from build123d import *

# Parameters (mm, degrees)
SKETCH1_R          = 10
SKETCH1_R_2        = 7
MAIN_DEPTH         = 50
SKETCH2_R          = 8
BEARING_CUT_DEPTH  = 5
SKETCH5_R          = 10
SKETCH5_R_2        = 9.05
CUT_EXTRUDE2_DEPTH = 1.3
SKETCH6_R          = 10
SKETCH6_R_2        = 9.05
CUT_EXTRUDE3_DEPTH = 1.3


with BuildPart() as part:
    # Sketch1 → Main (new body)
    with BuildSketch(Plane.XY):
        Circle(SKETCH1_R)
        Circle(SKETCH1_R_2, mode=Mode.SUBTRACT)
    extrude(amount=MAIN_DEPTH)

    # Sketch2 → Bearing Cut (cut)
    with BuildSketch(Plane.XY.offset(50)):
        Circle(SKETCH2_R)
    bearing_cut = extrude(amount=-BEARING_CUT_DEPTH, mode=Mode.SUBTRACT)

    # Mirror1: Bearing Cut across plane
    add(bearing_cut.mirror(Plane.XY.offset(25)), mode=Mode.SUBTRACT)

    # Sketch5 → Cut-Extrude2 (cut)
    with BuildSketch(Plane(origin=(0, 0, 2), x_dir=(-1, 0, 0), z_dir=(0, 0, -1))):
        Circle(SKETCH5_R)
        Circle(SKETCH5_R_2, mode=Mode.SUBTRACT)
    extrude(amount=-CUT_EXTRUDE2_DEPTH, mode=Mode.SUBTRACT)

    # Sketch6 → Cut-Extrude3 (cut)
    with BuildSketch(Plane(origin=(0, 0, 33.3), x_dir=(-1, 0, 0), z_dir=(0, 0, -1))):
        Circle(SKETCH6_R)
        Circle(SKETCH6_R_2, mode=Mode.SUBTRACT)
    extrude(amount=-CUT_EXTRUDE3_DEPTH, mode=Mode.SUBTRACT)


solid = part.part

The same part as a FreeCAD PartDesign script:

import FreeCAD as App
import Part
import Sketcher
Q = App.Units.Quantity

doc = App.newDocument("Part")
params = doc.addObject("Spreadsheet::Sheet", "Params")
for row, (alias, value) in enumerate([
    ("sketch1_diameter", "20 mm"),
    ("sketch1_diameter2", "14 mm"),
    ("pad1_length", "50 mm"),
    ("sketch2_diameter", "16 mm"),
    ("pocket1_length", "5 mm"),
    ("sketch3_diameter", "20 mm"),
    ("sketch3_diameter2", "18.1 mm"),
    ("pocket2_length", "1.3 mm"),
    ("sketch4_diameter", "20 mm"),
    ("sketch4_diameter2", "18.1 mm"),
    ("pocket3_length", "1.3 mm"),
], start=1):
    params.set(f"A{row}", alias)
    params.set(f"B{row}", "=" + value)
    params.setAlias(f"B{row}", alias)

body = doc.addObject("PartDesign::Body", "Body")

# Sketch on XY plane
sketch1 = body.newObject("Sketcher::SketchObject", "Sketch")
sketch1.AttachmentSupport = (doc.getObject("XY_Plane"), [""])
sketch1.MapMode = "FlatFace"
sketch1.addGeometry([
    Part.Circle(App.Vector(0, 0, 0), App.Vector(0, 0, 1), 10),
    Part.Circle(App.Vector(0, 0, 0), App.Vector(0, 0, 1), 7),
], False)
sketch1.addConstraint([
    Sketcher.Constraint("Coincident", 0, 3, -1, 1),
    Sketcher.Constraint("Coincident", 1, 3, -1, 1),
    Sketcher.Constraint("Diameter", 0, Q("20 mm")),
    Sketcher.Constraint("Diameter", 1, Q("14 mm")),
])
sketch1.setExpression("Constraints[2]", "Params.sketch1_diameter")
sketch1.setExpression("Constraints[3]", "Params.sketch1_diameter2")
pad1 = body.newObject("PartDesign::Pad", "Pad")
pad1.Profile = sketch1
pad1.setExpression("Length", "Params.pad1_length")

# Sketch on XY plane
sketch2 = body.newObject("Sketcher::SketchObject", "Sketch001")
sketch2.AttachmentSupport = (doc.getObject("XY_Plane"), [""])
sketch2.MapMode = "FlatFace"
sketch2.AttachmentOffset = App.Placement(App.Vector(0, 0, 50), App.Rotation())
sketch2.addGeometry(Part.Circle(App.Vector(0, 0, 0), App.Vector(0, 0, 1), 8), False)
sketch2.addConstraint([
    Sketcher.Constraint("Coincident", 0, 3, -1, 1),
    Sketcher.Constraint("Diameter", 0, Q("16 mm")),
])
sketch2.setExpression("Constraints[1]", "Params.sketch2_diameter")
pocket1 = body.newObject("PartDesign::Pocket", "Pocket")
pocket1.Profile = sketch2
pocket1.setExpression("Length", "Params.pocket1_length")
doc.recompute()

datumplane = body.newObject("PartDesign::Plane", "DatumPlane")
datumplane.AttachmentSupport = (doc.getObject("XY_Plane"), [""])
datumplane.MapMode = "FlatFace"
datumplane.AttachmentOffset = App.Placement(App.Vector(0, 0, 25), App.Rotation())
mirrored = body.newObject("PartDesign::Mirrored", "Mirrored")
mirrored.Originals = [pocket1]
mirrored.MirrorPlane = (datumplane, [""])
body.Tip = mirrored

# Sketch on XY plane
sketch3 = body.newObject("Sketcher::SketchObject", "Sketch002")
sketch3.AttachmentSupport = (doc.getObject("XY_Plane"), [""])
sketch3.MapMode = "FlatFace"
sketch3.AttachmentOffset = App.Placement(App.Vector(0, 0, 2), App.Rotation())
sketch3.addGeometry([
    Part.Circle(App.Vector(0, 0, 0), App.Vector(0, 0, 1), 10),
    Part.Circle(App.Vector(0, 0, 0), App.Vector(0, 0, 1), 9.05),
], False)
sketch3.addConstraint([
    Sketcher.Constraint("Coincident", 0, 3, -1, 1),
    Sketcher.Constraint("Coincident", 1, 3, -1, 1),
    Sketcher.Constraint("Diameter", 0, Q("20 mm")),
    Sketcher.Constraint("Diameter", 1, Q("18.1 mm")),
])
sketch3.setExpression("Constraints[2]", "Params.sketch3_diameter")
sketch3.setExpression("Constraints[3]", "Params.sketch3_diameter2")
pocket2 = body.newObject("PartDesign::Pocket", "Pocket001")
pocket2.Profile = sketch3
pocket2.setExpression("Length", "Params.pocket2_length")
pocket2.Reversed = True

# Sketch on XY plane
sketch4 = body.newObject("Sketcher::SketchObject", "Sketch003")
sketch4.AttachmentSupport = (doc.getObject("XY_Plane"), [""])
sketch4.MapMode = "FlatFace"
sketch4.AttachmentOffset = App.Placement(App.Vector(0, 0, 33.3), App.Rotation())
sketch4.addGeometry([
    Part.Circle(App.Vector(0, 0, 0), App.Vector(0, 0, 1), 10),
    Part.Circle(App.Vector(0, 0, 0), App.Vector(0, 0, 1), 9.05),
], False)
sketch4.addConstraint([
    Sketcher.Constraint("Coincident", 0, 3, -1, 1),
    Sketcher.Constraint("Coincident", 1, 3, -1, 1),
    Sketcher.Constraint("Diameter", 0, Q("20 mm")),
    Sketcher.Constraint("Diameter", 1, Q("18.1 mm")),
])
sketch4.setExpression("Constraints[2]", "Params.sketch4_diameter")
sketch4.setExpression("Constraints[3]", "Params.sketch4_diameter2")
pocket3 = body.newObject("PartDesign::Pocket", "Pocket002")
pocket3.Profile = sketch4
pocket3.setExpression("Length", "Params.pocket3_length")
pocket3.Reversed = True

doc.recompute()
